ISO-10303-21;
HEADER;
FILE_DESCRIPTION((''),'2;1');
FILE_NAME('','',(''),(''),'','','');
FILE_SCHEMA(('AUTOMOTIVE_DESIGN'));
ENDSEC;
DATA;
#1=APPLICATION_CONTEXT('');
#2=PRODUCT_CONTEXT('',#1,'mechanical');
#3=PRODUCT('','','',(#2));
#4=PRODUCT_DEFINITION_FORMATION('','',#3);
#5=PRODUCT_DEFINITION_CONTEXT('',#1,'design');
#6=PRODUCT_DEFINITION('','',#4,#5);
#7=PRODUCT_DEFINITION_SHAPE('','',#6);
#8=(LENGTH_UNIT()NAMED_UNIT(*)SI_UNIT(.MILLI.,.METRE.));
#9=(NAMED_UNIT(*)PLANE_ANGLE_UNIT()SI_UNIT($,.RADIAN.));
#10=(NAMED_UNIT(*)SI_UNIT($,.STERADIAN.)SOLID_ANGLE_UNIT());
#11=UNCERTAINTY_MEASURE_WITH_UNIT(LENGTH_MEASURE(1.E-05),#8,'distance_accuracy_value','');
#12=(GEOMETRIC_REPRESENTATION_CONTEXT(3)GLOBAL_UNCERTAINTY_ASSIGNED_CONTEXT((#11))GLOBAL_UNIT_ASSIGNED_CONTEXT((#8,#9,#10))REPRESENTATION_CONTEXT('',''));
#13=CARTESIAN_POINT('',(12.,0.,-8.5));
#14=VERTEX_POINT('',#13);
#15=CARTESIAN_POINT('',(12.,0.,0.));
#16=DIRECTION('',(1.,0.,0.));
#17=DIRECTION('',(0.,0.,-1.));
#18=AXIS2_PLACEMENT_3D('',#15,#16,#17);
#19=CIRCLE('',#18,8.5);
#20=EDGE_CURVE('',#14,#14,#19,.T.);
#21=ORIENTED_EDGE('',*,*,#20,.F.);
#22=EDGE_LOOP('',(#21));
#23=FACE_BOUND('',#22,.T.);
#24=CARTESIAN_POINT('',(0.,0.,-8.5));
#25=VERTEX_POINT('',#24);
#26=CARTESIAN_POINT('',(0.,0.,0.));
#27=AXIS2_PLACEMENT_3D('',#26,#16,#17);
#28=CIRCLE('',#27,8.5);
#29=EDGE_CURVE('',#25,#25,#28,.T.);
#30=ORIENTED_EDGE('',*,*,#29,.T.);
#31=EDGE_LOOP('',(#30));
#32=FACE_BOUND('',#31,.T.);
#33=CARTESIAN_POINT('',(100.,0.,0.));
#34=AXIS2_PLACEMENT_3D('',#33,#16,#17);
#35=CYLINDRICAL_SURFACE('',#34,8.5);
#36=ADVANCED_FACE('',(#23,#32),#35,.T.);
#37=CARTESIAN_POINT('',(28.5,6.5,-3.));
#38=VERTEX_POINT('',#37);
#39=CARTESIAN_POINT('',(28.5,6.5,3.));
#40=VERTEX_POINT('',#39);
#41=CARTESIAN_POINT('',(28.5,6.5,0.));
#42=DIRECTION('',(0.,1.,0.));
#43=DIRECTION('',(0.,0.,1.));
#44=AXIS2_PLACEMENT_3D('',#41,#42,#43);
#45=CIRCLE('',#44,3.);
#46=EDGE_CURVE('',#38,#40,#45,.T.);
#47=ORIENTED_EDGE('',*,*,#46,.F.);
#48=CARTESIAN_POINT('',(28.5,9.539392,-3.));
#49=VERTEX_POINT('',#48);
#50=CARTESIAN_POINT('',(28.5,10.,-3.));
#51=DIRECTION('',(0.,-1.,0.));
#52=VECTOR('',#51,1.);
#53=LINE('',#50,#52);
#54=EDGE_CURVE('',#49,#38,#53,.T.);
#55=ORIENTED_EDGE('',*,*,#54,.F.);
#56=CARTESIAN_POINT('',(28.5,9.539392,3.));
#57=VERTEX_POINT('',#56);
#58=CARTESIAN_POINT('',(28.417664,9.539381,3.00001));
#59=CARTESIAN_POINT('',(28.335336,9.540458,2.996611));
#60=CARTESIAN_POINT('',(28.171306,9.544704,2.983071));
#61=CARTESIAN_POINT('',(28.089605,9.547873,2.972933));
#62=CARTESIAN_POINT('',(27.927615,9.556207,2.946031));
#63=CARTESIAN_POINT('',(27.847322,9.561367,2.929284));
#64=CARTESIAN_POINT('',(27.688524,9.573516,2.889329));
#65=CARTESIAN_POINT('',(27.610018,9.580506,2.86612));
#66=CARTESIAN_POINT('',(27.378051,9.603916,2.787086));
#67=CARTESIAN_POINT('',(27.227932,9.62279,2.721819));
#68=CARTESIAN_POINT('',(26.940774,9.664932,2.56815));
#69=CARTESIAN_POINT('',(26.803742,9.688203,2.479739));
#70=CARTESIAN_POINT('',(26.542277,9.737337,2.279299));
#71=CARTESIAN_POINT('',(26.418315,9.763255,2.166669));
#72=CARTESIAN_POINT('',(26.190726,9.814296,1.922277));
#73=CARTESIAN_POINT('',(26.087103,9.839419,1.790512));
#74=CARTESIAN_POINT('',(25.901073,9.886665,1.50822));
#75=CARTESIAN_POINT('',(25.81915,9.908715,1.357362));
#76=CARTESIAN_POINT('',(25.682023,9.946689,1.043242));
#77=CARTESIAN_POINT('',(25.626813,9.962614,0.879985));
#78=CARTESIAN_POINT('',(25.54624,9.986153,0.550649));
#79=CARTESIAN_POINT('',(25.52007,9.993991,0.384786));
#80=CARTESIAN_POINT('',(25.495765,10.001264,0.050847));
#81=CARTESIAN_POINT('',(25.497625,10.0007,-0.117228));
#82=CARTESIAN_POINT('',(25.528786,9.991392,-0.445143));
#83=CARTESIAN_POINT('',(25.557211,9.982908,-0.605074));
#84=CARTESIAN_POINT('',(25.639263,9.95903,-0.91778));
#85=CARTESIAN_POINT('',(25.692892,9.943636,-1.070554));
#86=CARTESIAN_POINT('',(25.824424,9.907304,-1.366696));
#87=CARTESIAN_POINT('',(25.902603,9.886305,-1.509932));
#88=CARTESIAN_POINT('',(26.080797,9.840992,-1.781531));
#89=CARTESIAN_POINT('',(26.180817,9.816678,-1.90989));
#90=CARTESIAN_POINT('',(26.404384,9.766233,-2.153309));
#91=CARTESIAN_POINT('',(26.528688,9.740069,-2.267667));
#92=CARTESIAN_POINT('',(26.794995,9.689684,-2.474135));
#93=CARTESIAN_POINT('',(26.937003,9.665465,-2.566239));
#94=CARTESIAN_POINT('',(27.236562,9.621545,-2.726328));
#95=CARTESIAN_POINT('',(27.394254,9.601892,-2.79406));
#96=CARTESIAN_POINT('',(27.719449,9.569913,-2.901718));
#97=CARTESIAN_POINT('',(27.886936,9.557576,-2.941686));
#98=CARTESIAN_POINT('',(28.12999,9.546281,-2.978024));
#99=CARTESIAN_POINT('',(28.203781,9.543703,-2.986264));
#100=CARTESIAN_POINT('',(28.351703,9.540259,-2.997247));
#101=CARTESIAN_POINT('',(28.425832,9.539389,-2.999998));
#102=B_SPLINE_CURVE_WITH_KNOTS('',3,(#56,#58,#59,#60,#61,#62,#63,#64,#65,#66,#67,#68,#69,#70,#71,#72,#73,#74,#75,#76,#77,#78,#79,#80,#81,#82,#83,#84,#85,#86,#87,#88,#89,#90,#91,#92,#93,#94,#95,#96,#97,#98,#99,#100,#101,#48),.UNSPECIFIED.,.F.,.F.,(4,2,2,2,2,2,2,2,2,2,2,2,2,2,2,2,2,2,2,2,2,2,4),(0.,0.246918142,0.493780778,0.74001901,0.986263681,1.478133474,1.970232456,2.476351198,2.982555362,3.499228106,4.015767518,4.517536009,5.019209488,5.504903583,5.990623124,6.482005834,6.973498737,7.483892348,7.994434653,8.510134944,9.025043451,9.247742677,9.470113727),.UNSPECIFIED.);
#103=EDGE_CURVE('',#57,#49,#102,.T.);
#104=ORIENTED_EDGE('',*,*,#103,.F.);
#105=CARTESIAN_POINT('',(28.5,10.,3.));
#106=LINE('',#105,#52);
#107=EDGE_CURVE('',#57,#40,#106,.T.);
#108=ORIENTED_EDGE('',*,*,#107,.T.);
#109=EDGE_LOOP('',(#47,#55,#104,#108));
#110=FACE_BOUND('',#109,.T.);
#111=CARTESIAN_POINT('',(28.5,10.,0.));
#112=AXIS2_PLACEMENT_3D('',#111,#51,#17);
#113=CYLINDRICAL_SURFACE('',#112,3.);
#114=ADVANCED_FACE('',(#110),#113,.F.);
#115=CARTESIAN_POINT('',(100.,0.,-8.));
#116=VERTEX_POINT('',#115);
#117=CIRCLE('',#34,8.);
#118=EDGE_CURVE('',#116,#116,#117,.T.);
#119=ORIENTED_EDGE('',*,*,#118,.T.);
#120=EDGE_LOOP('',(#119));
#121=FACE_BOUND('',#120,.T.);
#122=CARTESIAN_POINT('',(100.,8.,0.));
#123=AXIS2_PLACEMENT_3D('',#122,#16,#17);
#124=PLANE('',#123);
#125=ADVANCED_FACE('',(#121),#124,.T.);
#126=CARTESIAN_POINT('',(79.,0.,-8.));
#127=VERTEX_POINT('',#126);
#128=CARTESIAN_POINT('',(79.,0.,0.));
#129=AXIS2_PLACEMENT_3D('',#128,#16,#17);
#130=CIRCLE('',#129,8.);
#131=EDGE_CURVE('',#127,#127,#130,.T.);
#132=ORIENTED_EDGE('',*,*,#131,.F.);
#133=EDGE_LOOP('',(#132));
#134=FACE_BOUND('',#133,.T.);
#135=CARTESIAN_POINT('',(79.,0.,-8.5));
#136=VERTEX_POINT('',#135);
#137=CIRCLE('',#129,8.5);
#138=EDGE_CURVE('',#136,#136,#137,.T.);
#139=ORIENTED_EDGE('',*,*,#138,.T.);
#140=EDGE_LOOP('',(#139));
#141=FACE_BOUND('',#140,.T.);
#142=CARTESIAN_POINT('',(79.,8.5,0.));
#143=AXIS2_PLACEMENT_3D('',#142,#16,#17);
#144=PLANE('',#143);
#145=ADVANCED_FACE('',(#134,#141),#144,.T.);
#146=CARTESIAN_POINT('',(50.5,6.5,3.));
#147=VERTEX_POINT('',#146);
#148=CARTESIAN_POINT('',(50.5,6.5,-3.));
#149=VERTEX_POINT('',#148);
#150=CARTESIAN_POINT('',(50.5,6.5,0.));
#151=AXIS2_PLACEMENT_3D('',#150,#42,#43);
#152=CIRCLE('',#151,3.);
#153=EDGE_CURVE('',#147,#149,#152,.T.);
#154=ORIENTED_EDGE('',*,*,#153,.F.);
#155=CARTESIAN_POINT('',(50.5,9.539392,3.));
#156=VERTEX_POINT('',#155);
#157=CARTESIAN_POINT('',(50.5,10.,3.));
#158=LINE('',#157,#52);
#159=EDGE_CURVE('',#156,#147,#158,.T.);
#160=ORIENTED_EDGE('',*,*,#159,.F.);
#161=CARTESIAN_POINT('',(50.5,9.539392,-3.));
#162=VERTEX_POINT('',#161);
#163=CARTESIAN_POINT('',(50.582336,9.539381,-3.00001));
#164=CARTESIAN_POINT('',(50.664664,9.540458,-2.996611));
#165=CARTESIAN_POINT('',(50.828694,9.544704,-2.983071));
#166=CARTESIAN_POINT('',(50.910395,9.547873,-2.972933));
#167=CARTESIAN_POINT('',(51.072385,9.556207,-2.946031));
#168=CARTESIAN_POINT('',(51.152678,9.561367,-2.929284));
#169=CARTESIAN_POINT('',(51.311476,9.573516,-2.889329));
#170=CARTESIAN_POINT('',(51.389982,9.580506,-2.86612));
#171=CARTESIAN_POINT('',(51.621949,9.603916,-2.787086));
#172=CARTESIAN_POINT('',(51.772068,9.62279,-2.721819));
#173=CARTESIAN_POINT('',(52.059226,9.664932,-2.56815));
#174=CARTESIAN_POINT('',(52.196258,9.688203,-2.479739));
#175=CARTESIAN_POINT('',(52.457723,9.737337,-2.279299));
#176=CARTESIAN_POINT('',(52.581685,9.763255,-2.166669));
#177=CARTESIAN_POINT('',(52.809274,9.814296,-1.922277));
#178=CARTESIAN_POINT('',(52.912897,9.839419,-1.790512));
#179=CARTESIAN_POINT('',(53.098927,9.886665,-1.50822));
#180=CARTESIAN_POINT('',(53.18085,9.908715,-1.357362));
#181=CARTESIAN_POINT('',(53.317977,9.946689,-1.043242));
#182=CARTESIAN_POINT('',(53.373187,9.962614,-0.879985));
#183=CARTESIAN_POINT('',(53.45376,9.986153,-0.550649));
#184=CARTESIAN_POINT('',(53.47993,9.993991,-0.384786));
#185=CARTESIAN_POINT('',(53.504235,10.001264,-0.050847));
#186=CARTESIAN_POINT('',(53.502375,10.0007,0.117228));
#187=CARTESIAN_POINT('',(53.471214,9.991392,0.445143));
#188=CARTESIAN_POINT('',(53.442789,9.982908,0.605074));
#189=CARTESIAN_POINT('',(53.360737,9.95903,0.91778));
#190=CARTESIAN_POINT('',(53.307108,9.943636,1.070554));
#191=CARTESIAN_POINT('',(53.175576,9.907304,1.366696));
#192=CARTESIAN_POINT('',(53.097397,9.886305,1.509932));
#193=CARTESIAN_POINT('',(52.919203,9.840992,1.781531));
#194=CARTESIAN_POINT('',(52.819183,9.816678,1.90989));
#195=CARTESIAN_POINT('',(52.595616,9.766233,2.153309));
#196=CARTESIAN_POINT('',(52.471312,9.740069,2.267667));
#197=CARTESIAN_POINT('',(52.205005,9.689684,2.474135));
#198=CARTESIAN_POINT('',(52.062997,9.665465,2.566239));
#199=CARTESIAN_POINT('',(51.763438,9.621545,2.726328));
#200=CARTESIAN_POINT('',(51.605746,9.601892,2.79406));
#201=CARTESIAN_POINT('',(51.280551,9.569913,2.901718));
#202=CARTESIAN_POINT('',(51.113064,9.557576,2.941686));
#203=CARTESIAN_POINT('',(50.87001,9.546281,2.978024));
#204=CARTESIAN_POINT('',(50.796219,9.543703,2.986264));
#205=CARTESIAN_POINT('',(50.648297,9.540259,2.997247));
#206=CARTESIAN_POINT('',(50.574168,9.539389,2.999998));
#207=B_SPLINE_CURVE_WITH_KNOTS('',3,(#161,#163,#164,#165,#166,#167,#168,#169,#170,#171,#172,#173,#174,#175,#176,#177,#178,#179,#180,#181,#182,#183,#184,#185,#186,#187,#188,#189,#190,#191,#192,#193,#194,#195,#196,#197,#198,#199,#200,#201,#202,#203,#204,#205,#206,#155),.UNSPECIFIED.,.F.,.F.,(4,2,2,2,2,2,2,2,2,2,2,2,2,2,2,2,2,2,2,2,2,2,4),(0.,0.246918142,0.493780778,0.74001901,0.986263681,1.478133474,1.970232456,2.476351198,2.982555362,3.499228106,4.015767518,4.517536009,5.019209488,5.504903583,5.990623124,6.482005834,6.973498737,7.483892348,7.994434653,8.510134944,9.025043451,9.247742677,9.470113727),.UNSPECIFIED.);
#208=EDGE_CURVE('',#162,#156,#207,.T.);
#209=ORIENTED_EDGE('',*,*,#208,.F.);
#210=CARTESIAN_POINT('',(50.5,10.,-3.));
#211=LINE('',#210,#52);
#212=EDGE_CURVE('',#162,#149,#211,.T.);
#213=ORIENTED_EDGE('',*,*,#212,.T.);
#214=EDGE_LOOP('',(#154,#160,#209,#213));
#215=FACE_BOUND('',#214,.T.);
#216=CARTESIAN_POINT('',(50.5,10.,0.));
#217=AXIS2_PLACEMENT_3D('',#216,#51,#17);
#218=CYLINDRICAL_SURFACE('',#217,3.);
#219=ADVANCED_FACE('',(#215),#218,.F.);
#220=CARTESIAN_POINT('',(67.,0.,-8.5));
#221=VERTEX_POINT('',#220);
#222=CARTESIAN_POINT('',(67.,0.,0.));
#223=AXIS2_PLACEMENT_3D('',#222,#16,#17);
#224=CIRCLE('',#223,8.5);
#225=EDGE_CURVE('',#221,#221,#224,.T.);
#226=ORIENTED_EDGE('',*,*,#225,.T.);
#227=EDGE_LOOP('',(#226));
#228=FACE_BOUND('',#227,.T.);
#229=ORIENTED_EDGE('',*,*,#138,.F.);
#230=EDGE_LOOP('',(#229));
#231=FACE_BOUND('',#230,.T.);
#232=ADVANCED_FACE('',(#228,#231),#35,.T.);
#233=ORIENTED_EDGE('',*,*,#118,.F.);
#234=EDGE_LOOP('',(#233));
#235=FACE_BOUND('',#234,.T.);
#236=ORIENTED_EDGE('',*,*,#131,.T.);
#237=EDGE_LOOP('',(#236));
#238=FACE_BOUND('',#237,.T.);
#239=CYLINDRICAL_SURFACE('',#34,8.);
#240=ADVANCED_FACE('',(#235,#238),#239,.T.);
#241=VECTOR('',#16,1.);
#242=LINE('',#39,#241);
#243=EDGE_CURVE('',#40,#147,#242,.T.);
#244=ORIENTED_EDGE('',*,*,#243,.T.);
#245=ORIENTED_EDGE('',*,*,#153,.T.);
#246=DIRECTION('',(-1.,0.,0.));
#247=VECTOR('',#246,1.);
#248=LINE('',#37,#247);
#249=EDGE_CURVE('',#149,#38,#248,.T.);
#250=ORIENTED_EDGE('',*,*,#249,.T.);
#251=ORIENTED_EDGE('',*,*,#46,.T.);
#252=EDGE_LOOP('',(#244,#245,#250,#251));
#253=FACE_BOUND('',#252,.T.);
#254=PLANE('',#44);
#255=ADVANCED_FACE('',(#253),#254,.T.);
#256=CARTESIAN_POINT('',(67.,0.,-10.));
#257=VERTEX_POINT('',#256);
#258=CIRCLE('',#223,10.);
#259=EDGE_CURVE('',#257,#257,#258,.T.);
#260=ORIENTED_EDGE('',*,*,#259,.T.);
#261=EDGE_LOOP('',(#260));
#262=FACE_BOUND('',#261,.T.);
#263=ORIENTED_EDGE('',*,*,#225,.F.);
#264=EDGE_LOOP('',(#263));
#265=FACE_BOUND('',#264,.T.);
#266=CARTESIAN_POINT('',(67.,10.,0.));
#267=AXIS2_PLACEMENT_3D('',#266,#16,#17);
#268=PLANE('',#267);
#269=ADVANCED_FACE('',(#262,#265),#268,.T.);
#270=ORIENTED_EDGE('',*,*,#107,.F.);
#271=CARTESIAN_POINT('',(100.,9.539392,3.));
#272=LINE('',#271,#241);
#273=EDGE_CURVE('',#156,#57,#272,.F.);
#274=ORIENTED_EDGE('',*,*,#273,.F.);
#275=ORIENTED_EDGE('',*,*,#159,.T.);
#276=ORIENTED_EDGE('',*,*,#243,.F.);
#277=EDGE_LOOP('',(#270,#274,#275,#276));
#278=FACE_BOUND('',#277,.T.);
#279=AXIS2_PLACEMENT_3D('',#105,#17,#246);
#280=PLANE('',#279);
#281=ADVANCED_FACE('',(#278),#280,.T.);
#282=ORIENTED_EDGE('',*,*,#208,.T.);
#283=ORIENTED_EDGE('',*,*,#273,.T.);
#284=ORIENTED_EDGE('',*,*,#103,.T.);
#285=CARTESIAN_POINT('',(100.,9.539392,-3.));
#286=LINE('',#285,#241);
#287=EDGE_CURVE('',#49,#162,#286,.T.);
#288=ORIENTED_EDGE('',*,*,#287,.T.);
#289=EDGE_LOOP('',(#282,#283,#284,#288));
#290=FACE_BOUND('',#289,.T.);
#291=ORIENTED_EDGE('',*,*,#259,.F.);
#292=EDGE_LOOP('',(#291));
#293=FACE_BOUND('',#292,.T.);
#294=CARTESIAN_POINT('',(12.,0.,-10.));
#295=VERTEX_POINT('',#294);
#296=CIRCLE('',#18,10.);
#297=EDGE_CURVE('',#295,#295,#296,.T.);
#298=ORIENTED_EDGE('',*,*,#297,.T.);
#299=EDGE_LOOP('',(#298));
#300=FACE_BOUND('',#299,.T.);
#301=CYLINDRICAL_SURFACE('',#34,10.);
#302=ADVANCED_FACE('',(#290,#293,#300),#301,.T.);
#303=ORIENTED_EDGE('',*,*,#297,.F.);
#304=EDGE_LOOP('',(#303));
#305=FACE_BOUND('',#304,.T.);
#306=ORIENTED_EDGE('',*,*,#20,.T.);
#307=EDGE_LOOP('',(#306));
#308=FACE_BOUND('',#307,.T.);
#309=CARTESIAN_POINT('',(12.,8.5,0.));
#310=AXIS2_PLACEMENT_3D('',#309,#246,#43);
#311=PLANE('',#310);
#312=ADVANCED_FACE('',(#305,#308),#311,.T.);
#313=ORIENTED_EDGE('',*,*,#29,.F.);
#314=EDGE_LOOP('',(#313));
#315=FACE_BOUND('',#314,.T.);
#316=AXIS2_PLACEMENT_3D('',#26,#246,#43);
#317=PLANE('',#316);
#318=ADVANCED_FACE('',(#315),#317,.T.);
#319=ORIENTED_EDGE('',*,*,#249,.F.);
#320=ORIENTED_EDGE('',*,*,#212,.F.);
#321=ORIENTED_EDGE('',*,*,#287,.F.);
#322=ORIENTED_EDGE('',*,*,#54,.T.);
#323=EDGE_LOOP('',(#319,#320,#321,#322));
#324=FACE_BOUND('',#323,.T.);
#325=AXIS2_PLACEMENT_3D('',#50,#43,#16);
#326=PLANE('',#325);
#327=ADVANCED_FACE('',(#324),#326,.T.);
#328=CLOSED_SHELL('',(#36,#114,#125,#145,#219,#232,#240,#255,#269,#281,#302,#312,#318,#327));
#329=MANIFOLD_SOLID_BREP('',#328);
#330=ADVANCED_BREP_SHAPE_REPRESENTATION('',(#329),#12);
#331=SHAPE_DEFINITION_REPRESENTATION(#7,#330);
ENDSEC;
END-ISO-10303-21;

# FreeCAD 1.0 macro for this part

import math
import FreeCAD as App
import Part
import Sketcher
Q = App.Units.Quantity

doc = App.newDocument("Part")
body = doc.addObject("PartDesign::Body", "Body")

sketch1 = doc.addObject("Sketcher::SketchObject", "Sketch")
body.addObject(sketch1)
sketch1.AttachmentSupport = (doc.XY_Plane, [""])
sketch1.MapMode = "FlatFace"
sketch1.addGeometry([
    Part.LineSegment(App.Vector(0, 8.5, 0), App.Vector(0, 0, 0)),
    Part.LineSegment(App.Vector(0, 0, 0), App.Vector(100, 0, 0)),
    Part.LineSegment(App.Vector(100, 0, 0), App.Vector(100, 8, 0)),
    Part.LineSegment(App.Vector(100, 8, 0), App.Vector(79, 8, 0)),
    Part.LineSegment(App.Vector(79, 8, 0), App.Vector(79, 8.5, 0)),
    Part.LineSegment(App.Vector(79, 8.5, 0), App.Vector(67, 8.5, 0)),
    Part.LineSegment(App.Vector(67, 8.5, 0), App.Vector(67, 10, 0)),
    Part.LineSegment(App.Vector(67, 10, 0), App.Vector(12, 10, 0)),
    Part.LineSegment(App.Vector(12, 10, 0), App.Vector(12, 8.5, 0)),
    Part.LineSegment(App.Vector(12, 8.5, 0), App.Vector(0, 8.5, 0)),
], False)
sketch1.addConstraint([
    Sketcher.Constraint("Coincident", 0, 2, 1, 1),
    Sketcher.Constraint("Coincident", 1, 2, 2, 1),
    Sketcher.Constraint("Coincident", 2, 2, 3, 1),
    Sketcher.Constraint("Coincident", 3, 2, 4, 1),
    Sketcher.Constraint("Coincident", 4, 2, 5, 1),
    Sketcher.Constraint("Coincident", 5, 2, 6, 1),
    Sketcher.Constraint("Coincident", 6, 2, 7, 1),
    Sketcher.Constraint("Coincident", 7, 2, 8, 1),
    Sketcher.Constraint("Coincident", 8, 2, 9, 1),
    Sketcher.Constraint("Coincident", 9, 2, 0, 1),
    Sketcher.Constraint("Vertical", 0),
    Sketcher.Constraint("Horizontal", 1),
    Sketcher.Constraint("Vertical", 2),
    Sketcher.Constraint("Horizontal", 3),
    Sketcher.Constraint("Vertical", 4),
    Sketcher.Constraint("Horizontal", 5),
    Sketcher.Constraint("Vertical", 6),
    Sketcher.Constraint("Horizontal", 7),
    Sketcher.Constraint("Vertical", 8),
    Sketcher.Constraint("Horizontal", 9),
    Sketcher.Constraint("Coincident", 0, 2, -1, 1),
    Sketcher.Constraint("Horizontal", 5, 2, 8, 2),
    Sketcher.Constraint("Equal", 5, 9),
    Sketcher.Constraint("DistanceX", 1, 1, 1, 2, Q("100 mm")),
    Sketcher.Constraint("DistanceX", 3, 2, 3, 1, Q("21 mm")),
    Sketcher.Constraint("DistanceX", 5, 2, 5, 1, Q("12 mm")),
    Sketcher.Constraint("DistanceY", 2, 1, 2, 2, Q("8 mm")),
    Sketcher.Constraint("DistanceY", 0, 2, 0, 1, Q("8.5 mm")),
    Sketcher.Constraint("DistanceY", 6, 1, 6, 2, Q("1.5 mm")),
])
revolution = doc.addObject("PartDesign::Revolution", "Revolution")
body.addObject(revolution)
revolution.Profile = sketch1
revolution.ReferenceAxis = (sketch1, ["H_Axis"])
revolution.Angle = 360

sketch2 = doc.addObject("Sketcher::SketchObject", "Sketch001")
body.addObject(sketch2)
sketch2.AttachmentSupport = (doc.XZ_Plane, [""])
sketch2.MapMode = "FlatFace"
sketch2.AttachmentOffset = App.Placement(App.Vector(0, 0, -6.5), App.Rotation())
sketch2.addGeometry([
    Part.LineSegment(App.Vector(50.5, -3, 0), App.Vector(28.5, -3, 0)),
    Part.ArcOfCircle(Part.Circle(App.Vector(28.5, 0, 0), App.Vector(0, 0, 1), 3), math.radians(90), math.radians(270)),
    Part.LineSegment(App.Vector(28.5, 3, 0), App.Vector(50.5, 3, 0)),
    Part.ArcOfCircle(Part.Circle(App.Vector(50.5, 0, 0), App.Vector(0, 0, 1), 3), math.radians(-90), math.radians(90)),
], False)
sketch2.addConstraint([
    Sketcher.Constraint("Tangent", 0, 2, 1, 2),
    Sketcher.Constraint("Tangent", 1, 1, 2, 1),
    Sketcher.Constraint("Tangent", 2, 2, 3, 2),
    Sketcher.Constraint("Tangent", 3, 1, 0, 1),
    Sketcher.Constraint("Horizontal", 0),
    Sketcher.Constraint("Horizontal", 2),
    Sketcher.Constraint("PointOnObject", 1, 3, -1),
    Sketcher.Constraint("Radius", 1, Q("3 mm")),
    Sketcher.Constraint("DistanceX", 0, 2, 0, 1, Q("22 mm")),
    Sketcher.Constraint("DistanceX", -1, 1, 1, 3, Q("28.5 mm")),
])
pocket1 = doc.addObject("PartDesign::Pocket", "Pocket")
body.addObject(pocket1)
pocket1.Profile = sketch2
pocket1.Type = "ThroughAll"

doc.recompute()
